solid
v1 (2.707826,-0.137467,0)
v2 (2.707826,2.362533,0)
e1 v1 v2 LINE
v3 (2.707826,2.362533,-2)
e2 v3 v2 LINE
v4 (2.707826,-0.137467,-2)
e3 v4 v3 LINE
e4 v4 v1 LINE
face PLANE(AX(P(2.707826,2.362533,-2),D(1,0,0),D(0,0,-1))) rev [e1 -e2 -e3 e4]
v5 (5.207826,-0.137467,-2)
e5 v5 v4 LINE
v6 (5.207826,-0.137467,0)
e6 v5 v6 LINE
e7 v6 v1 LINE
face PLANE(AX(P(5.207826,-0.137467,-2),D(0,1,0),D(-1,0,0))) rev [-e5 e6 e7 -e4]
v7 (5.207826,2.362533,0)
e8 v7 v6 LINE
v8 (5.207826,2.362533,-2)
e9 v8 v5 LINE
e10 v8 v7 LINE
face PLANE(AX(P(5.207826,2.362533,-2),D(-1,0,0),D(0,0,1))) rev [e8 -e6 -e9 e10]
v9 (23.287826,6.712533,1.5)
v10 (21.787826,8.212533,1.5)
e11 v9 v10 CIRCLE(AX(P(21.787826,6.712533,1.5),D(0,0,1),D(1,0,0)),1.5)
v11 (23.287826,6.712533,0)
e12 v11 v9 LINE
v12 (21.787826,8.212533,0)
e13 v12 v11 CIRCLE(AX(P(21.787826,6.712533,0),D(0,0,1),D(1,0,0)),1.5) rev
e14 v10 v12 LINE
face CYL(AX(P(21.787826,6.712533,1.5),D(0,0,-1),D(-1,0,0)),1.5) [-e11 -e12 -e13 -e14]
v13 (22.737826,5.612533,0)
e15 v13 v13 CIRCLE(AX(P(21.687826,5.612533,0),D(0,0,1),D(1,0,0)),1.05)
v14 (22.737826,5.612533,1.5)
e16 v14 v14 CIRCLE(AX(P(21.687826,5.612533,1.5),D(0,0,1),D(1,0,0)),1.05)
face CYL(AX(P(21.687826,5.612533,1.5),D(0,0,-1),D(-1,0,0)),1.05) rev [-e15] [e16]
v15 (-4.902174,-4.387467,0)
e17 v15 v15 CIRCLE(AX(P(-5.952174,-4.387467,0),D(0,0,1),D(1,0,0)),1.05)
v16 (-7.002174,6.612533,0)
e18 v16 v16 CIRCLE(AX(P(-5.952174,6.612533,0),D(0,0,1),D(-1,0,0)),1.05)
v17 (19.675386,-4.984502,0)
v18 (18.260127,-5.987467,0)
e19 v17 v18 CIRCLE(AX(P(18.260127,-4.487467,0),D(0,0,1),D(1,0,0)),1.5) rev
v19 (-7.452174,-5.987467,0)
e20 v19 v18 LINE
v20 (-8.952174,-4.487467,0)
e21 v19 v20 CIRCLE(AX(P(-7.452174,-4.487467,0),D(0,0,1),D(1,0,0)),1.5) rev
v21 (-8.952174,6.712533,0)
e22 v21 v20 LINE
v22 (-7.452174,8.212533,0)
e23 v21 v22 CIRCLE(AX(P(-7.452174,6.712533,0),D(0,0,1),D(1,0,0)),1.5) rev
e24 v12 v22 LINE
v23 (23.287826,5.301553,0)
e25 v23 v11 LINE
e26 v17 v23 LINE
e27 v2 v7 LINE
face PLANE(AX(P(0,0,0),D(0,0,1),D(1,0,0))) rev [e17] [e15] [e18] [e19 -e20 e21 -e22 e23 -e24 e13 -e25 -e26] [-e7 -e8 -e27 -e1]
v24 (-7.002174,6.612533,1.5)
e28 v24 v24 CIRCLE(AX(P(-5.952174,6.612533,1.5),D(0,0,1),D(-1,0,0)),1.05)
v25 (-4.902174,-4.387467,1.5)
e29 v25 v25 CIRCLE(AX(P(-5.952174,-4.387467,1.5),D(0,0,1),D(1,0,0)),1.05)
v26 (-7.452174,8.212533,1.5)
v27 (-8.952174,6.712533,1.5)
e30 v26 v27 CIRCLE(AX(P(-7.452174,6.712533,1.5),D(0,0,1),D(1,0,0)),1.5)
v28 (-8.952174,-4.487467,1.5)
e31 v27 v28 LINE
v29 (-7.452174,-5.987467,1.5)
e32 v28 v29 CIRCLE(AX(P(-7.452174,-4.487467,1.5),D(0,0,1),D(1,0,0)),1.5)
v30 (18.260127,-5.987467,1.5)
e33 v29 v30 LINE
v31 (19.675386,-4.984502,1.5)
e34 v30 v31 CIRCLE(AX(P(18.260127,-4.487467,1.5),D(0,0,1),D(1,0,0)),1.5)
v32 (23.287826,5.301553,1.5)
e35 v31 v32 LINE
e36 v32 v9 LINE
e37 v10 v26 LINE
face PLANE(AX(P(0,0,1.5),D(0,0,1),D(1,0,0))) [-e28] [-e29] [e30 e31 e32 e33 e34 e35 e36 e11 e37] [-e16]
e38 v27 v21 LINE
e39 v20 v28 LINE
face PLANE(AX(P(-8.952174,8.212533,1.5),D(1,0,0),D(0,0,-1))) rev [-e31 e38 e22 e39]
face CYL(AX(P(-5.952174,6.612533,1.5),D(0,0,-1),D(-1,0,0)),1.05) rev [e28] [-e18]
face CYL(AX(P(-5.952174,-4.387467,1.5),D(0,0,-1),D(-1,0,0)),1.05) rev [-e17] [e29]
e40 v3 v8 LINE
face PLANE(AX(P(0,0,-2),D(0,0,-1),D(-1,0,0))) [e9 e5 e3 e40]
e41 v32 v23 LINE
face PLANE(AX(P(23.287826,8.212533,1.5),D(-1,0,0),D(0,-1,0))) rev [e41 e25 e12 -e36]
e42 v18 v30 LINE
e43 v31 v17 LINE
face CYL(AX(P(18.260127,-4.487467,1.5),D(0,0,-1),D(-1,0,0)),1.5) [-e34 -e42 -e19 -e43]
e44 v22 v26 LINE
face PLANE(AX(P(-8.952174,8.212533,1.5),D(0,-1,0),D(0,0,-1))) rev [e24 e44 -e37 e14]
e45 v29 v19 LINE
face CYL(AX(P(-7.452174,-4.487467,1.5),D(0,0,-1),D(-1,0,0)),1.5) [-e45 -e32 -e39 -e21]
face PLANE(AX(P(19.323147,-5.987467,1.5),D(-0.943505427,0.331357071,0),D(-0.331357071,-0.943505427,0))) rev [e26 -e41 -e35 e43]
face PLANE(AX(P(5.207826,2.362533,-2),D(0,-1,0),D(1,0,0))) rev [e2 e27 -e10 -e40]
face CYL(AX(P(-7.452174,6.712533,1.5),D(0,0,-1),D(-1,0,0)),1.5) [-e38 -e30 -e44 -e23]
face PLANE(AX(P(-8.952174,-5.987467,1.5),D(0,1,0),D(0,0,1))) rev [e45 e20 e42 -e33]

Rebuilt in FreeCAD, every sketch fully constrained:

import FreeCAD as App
import Part
import Sketcher

V = App.Vector
Q = App.Units.Quantity


def edges_at(feature, points):
    """Names of the edges that pass closest to the given points."""
    edges = feature.Shape.Edges
    near = lambda p: min(range(len(edges)), key=lambda i: edges[i].distToShape(Part.Vertex(*p))[0])
    return sorted({f"Edge{near(p) + 1}" for p in points})


def add_polygon(sketch, points):
    """Adds a closed chain of lines whose ends are joined by coincident constraints."""
    first, n = sketch.GeometryCount, len(points)
    for a, b in zip(points, points[1:] + points[:1]):
        sketch.addGeometry(Part.LineSegment(App.Vector(*a, 0), App.Vector(*b, 0)), False)
    for i in range(n):
        sketch.addConstraint(Sketcher.Constraint("Coincident", first + i, 2, first + (i + 1) % n, 1))

doc = App.newDocument("Part")
body = doc.addObject("PartDesign::Body", "Body")

sketch1 = body.newObject("Sketcher::SketchObject", "Sketch")
sketch1.AttachmentSupport = (doc.getObject("XY_Plane"), [""])
sketch1.MapMode = "FlatFace"
add_polygon(sketch1, [(23.3, 8.2), (-9, 8.2), (-9, -6), (19.3, -6), (23.3, 5.3)])
sketch1.addGeometry(Part.Circle(V(-6, -4.4, 0), V(0, 0, 1), 1.1), False)
sketch1.addGeometry(Part.Circle(V(21.7, 5.6, 0), V(0, 0, 1), 1.1), False)
sketch1.addGeometry(Part.Circle(V(-6, 6.6, 0), V(0, 0, 1), 1.1), False)
sketch1.addConstraint([
    Sketcher.Constraint("Horizontal", 0),
    Sketcher.Constraint("Vertical", 1),
    Sketcher.Constraint("Horizontal", 2),
    Sketcher.Constraint("Vertical", 4),
    Sketcher.Constraint("Equal", 5, 6),
    Sketcher.Constraint("Equal", 6, 7),
    Sketcher.Constraint("Vertical", 5, 3, 7, 3),
    Sketcher.Constraint("Diameter", 5, Q("2.1 mm")),
    Sketcher.Constraint("DistanceY", 1, 2, 1, 1, Q("14.2 mm")),
    Sketcher.Constraint("DistanceY", 5, 3, 6, 3, Q("10 mm")),
    Sketcher.Constraint("DistanceY", 5, 3, 7, 3, Q("11 mm")),
    Sketcher.Constraint("DistanceX", 0, 2, 7, 3, Q("3 mm")),
    Sketcher.Constraint("DistanceX", 0, 2, 0, 1, Q("32.24 mm")),
    Sketcher.Constraint("DistanceY", 7, 3, 0, 2, Q("1.6 mm")),
    Sketcher.Constraint("DistanceX", 6, 3, 3, 2, Q("1.6 mm")),
    Sketcher.Constraint("DistanceX", 2, 1, 2, 2, Q("28.275321 mm")),
    Sketcher.Constraint("DistanceY", 4, 1, 4, 2, Q("2.91098 mm")),
    Sketcher.Constraint("DistanceX", 5, 3, -1, 1, Q("5.952174 mm")),
    Sketcher.Constraint("DistanceY", 5, 3, -1, 1, Q("4.387467 mm")),
])
pad1 = body.newObject("PartDesign::Pad", "Pad")
pad1.Profile = sketch1
pad1.Length = 1.5
doc.recompute()

fillet = body.newObject("PartDesign::Fillet", "Fillet")
fillet.Base = (pad1, edges_at(pad1, [(23.288, 8.213, 0.75)]))
fillet.Radius = 1.5
doc.recompute()

fillet2 = body.newObject("PartDesign::Fillet", "Fillet001")
fillet2.Base = (fillet, edges_at(fillet, [(-8.952, 8.213, 0.75), (19.323, -5.987, 0.75), (-8.952, -5.987, 0.75)]))
fillet2.Radius = 1.5

sketch2 = body.newObject("Sketcher::SketchObject", "Sketch001")
sketch2.AttachmentSupport = (doc.getObject("XY_Plane"), [""])
sketch2.MapMode = "FlatFace"
add_polygon(sketch2, [(5.2, 2.4), (5.2, -0.1), (2.7, -0.1), (2.7, 2.4)])
sketch2.addConstraint([
    Sketcher.Constraint("Vertical", 0),
    Sketcher.Constraint("Horizontal", 1),
    Sketcher.Constraint("Vertical", 2),
    Sketcher.Constraint("Horizontal", 3),
    Sketcher.Constraint("Equal", 3, 0),
    Sketcher.Constraint("DistanceX", 1, 2, 1, 1, Q("2.5 mm")),
    Sketcher.Constraint("DistanceX", -1, 1, 0, 2, Q("5.207826 mm")),
    Sketcher.Constraint("DistanceY", 0, 2, -1, 1, Q("0.137467 mm")),
])
pad2 = body.newObject("PartDesign::Pad", "Pad001")
pad2.Profile = sketch2
pad2.Length = 2
pad2.Reversed = True

doc.recompute()
